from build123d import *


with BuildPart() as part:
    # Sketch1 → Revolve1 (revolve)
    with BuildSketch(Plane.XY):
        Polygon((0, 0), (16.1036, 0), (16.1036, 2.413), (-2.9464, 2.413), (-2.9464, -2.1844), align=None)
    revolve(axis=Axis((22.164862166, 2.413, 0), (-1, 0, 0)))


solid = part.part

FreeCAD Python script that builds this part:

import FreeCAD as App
import Part
import Sketcher

V = App.Vector
Q = App.Units.Quantity

doc = App.newDocument("Part")
body = doc.addObject("PartDesign::Body", "Body")

# Sketch on XY plane
sketch1 = doc.addObject("Sketcher::SketchObject", "Sketch")
body.addObject(sketch1)
sketch1.AttachmentSupport = (doc.XY_Plane, [""])
sketch1.MapMode = "FlatFace"
sketch1.addGeometry([
    Part.LineSegment(V(0, 0, 0), V(16.1036, 0, 0)),  # 0
    Part.LineSegment(V(16.1036, 0, 0), V(16.1036, 2.413, 0)),  # 1
    Part.LineSegment(V(16.1036, 2.413, 0), V(-2.9464, 2.413, 0)),  # 2
    Part.LineSegment(V(-2.9464, 2.413, 0), V(-2.9464, -2.1844, 0)),  # 3
    Part.LineSegment(V(-2.9464, -2.1844, 0), V(0, 0, 0)),  # 4
], False)
sketch1.addGeometry(Part.LineSegment(V(16.1036, 2.413, 0), V(-2.9464, 2.413, 0)), True)  # axis
sketch1.addConstraint([
    Sketcher.Constraint("Coincident", 0, 2, 1, 1),
    Sketcher.Constraint("Coincident", 1, 2, 2, 1),
    Sketcher.Constraint("Coincident", 2, 2, 3, 1),
    Sketcher.Constraint("Coincident", 3, 2, 4, 1),
    Sketcher.Constraint("Coincident", 4, 2, 0, 1),
    Sketcher.Constraint("Horizontal", 0),
    Sketcher.Constraint("Vertical", 1),
    Sketcher.Constraint("Horizontal", 2),
    Sketcher.Constraint("Vertical", 3),
    Sketcher.Constraint("Horizontal", 5),
    Sketcher.Constraint("Coincident", 4, 2, -1, 1),
    Sketcher.Constraint("Coincident", 5, 1, 1, 2),
    Sketcher.Constraint("Vertical", 3, 2, 5, 2),
    Sketcher.Constraint("DistanceX", 2, 2, 2, 1, Q("0.75 in")),
    Sketcher.Constraint("DistanceX", 0, 1, 0, 2, Q("0.634 in")),
    Sketcher.Constraint("DistanceY", 1, 1, 1, 2, Q("0.095 in")),
    Sketcher.Constraint("DistanceY", 3, 2, 3, 1, Q("0.181 in")),
])
revolution = doc.addObject("PartDesign::Revolution", "Revolution")
body.addObject(revolution)
revolution.Profile = sketch1
revolution.ReferenceAxis = (sketch1, ["Axis0"])
revolution.Angle = 360

doc.recompute()
